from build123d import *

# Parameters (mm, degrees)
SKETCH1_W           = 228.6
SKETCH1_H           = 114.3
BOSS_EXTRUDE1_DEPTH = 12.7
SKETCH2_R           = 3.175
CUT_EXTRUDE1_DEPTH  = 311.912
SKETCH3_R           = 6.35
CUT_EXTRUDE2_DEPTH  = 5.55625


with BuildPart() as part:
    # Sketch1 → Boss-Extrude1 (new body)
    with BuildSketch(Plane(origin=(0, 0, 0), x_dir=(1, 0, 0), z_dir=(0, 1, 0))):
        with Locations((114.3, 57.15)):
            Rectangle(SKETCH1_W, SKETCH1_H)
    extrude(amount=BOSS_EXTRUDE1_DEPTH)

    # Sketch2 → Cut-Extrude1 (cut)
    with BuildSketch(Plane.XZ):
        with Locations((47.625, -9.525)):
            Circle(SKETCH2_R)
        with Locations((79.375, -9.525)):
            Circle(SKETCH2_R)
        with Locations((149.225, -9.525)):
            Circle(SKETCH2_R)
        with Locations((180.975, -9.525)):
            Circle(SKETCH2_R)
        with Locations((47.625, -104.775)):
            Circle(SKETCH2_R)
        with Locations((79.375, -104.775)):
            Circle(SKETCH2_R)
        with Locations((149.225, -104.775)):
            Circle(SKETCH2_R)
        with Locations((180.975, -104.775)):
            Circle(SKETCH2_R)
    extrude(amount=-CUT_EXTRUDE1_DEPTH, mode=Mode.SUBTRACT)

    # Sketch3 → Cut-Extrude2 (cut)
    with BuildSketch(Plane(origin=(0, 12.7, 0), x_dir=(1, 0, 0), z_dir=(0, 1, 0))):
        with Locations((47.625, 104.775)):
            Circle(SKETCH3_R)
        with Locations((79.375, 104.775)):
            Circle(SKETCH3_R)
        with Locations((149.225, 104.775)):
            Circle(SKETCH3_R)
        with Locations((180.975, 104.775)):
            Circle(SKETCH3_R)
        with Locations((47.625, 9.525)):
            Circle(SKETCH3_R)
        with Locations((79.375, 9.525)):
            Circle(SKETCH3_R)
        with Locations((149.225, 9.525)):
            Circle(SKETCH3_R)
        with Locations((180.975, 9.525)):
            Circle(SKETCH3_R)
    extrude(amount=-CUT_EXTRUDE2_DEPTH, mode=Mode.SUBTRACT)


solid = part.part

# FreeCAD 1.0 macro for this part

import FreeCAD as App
import Part
import Sketcher
from FreeCAD import Vector
Q = App.Units.Quantity

doc = App.newDocument("Part")
body = doc.addObject("PartDesign::Body", "Body")

# Sketch on XZ plane
sketch1 = body.newObject("Sketcher::SketchObject", "Sketch")
sketch1.AttachmentSupport = (doc.getObject("XZ_Plane"), [""])
sketch1.MapMode = "FlatFace"
sketch1.addGeometry(Part.LineSegment(Vector(0, -114, 0), Vector(0, 0, 0)), False)
sketch1.addGeometry(Part.LineSegment(Vector(0, 0, 0), Vector(229, 0, 0)), False)
sketch1.addGeometry(Part.LineSegment(Vector(229, 0, 0), Vector(229, -114, 0)), False)
sketch1.addGeometry(Part.LineSegment(Vector(229, -114, 0), Vector(0, -114, 0)), False)
sketch1.addConstraint(Sketcher.Constraint("Coincident", 0, 2, 1, 1))
sketch1.addConstraint(Sketcher.Constraint("Coincident", 1, 2, 2, 1))
sketch1.addConstraint(Sketcher.Constraint("Coincident", 2, 2, 3, 1))
sketch1.addConstraint(Sketcher.Constraint("Coincident", 3, 2, 0, 1))
sketch1.addConstraint(Sketcher.Constraint("Vertical", 0))
sketch1.addConstraint(Sketcher.Constraint("Horizontal", 1))
sketch1.addConstraint(Sketcher.Constraint("Vertical", 2))
sketch1.addConstraint(Sketcher.Constraint("Horizontal", 3))
sketch1.addConstraint(Sketcher.Constraint("Coincident", 0, 2, -1, 1))
sketch1.addConstraint(Sketcher.Constraint("DistanceX", 1, 1, 1, 2, Q("9 in")))
sketch1.addConstraint(Sketcher.Constraint("DistanceY", 0, 1, 0, 2, Q("4.5 in")))
pad1 = body.newObject("PartDesign::Pad", "Pad")
pad1.Profile = sketch1
pad1.Length = Q("0.5 in")
pad1.Reversed = True

# Sketch on XZ plane
sketch2 = body.newObject("Sketcher::SketchObject", "Sketch001")
sketch2.AttachmentSupport = (doc.getObject("XZ_Plane"), [""])
sketch2.MapMode = "FlatFace"
sketch2.addGeometry(Part.Circle(Vector(47.6, -9.5, 0), Vector(0, 0, 1), 3.2), False)
sketch2.addGeometry(Part.Circle(Vector(79.4, -9.5, 0), Vector(0, 0, 1), 3.2), False)
sketch2.addGeometry(Part.Circle(Vector(149.2, -9.5, 0), Vector(0, 0, 1), 3.2), False)
sketch2.addGeometry(Part.Circle(Vector(181, -9.5, 0), Vector(0, 0, 1), 3.2), False)
sketch2.addGeometry(Part.Circle(Vector(47.6, -104.8, 0), Vector(0, 0, 1), 3.2), False)
sketch2.addGeometry(Part.Circle(Vector(79.4, -104.8, 0), Vector(0, 0, 1), 3.2), False)
sketch2.addGeometry(Part.Circle(Vector(149.2, -104.8, 0), Vector(0, 0, 1), 3.2), False)
sketch2.addGeometry(Part.Circle(Vector(181, -104.8, 0), Vector(0, 0, 1), 3.2), False)
sketch2.addConstraint(Sketcher.Constraint("Equal", 0, 1))
sketch2.addConstraint(Sketcher.Constraint("Equal", 1, 2))
sketch2.addConstraint(Sketcher.Constraint("Equal", 2, 3))
sketch2.addConstraint(Sketcher.Constraint("Equal", 3, 4))
sketch2.addConstraint(Sketcher.Constraint("Equal", 4, 5))
sketch2.addConstraint(Sketcher.Constraint("Equal", 5, 6))
sketch2.addConstraint(Sketcher.Constraint("Equal", 6, 7))
sketch2.addConstraint(Sketcher.Constraint("Horizontal", 0, 3, 1, 3))
sketch2.addConstraint(Sketcher.Constraint("Horizontal", 1, 3, 2, 3))
sketch2.addConstraint(Sketcher.Constraint("Horizontal", 2, 3, 3, 3))
sketch2.addConstraint(Sketcher.Constraint("Horizontal", 4, 3, 5, 3))
sketch2.addConstraint(Sketcher.Constraint("Horizontal", 5, 3, 6, 3))
sketch2.addConstraint(Sketcher.Constraint("Horizontal", 6, 3, 7, 3))
sketch2.addConstraint(Sketcher.Constraint("Vertical", 0, 3, 4, 3))
sketch2.addConstraint(Sketcher.Constraint("Vertical", 1, 3, 5, 3))
sketch2.addConstraint(Sketcher.Constraint("Vertical", 2, 3, 6, 3))
sketch2.addConstraint(Sketcher.Constraint("Vertical", 3, 3, 7, 3))
sketch2.addConstraint(Sketcher.Constraint("Diameter", 0, Q("0.25 in")))
sketch2.addConstraint(Sketcher.Constraint("DistanceX", 0, 3, 2, 3, Q("4 in")))
sketch2.addConstraint(Sketcher.Constraint("DistanceX", 1, 3, 3, 3, Q("4 in")))
sketch2.addConstraint(Sketcher.Constraint("DistanceX", 0, 3, 1, 3, Q("1.25 in")))
sketch2.addConstraint(Sketcher.Constraint("DistanceY", 4, 3, 0, 3, Q("3.75 in")))
sketch2.addConstraint(Sketcher.Constraint("DistanceX", -1, 1, 0, 3, Q("1.875 in")))
sketch2.addConstraint(Sketcher.Constraint("DistanceY", 0, 3, -1, 1, Q("0.375 in")))
pocket1 = body.newObject("PartDesign::Pocket", "Pocket")
pocket1.Profile = sketch2
pocket1.Length = Q("12.28 in")

# Sketch on XZ plane
sketch3 = body.newObject("Sketcher::SketchObject", "Sketch002")
sketch3.AttachmentSupport = (doc.getObject("XZ_Plane"), [""])
sketch3.MapMode = "FlatFace"
sketch3.AttachmentOffset = App.Placement(Vector(0, 0, -0.5 * 25.4), App.Rotation())
sketch3.addGeometry(Part.Circle(Vector(48, -105, 0), Vector(0, 0, 1), 6), False)
sketch3.addGeometry(Part.Circle(Vector(79, -105, 0), Vector(0, 0, 1), 6), False)
sketch3.addGeometry(Part.Circle(Vector(149, -105, 0), Vector(0, 0, 1), 6), False)
sketch3.addGeometry(Part.Circle(Vector(181, -105, 0), Vector(0, 0, 1), 6), False)
sketch3.addGeometry(Part.Circle(Vector(48, -10, 0), Vector(0, 0, 1), 6), False)
sketch3.addGeometry(Part.Circle(Vector(79, -10, 0), Vector(0, 0, 1), 6), False)
sketch3.addGeometry(Part.Circle(Vector(149, -10, 0), Vector(0, 0, 1), 6), False)
sketch3.addGeometry(Part.Circle(Vector(181, -10, 0), Vector(0, 0, 1), 6), False)
sketch3.addConstraint(Sketcher.Constraint("Equal", 0, 1))
sketch3.addConstraint(Sketcher.Constraint("Equal", 1, 2))
sketch3.addConstraint(Sketcher.Constraint("Equal", 2, 3))
sketch3.addConstraint(Sketcher.Constraint("Equal", 3, 4))
sketch3.addConstraint(Sketcher.Constraint("Equal", 4, 5))
sketch3.addConstraint(Sketcher.Constraint("Equal", 5, 6))
sketch3.addConstraint(Sketcher.Constraint("Equal", 6, 7))
sketch3.addConstraint(Sketcher.Constraint("Horizontal", 0, 3, 1, 3))
sketch3.addConstraint(Sketcher.Constraint("Horizontal", 1, 3, 2, 3))
sketch3.addConstraint(Sketcher.Constraint("Horizontal", 2, 3, 3, 3))
sketch3.addConstraint(Sketcher.Constraint("Horizontal", 4, 3, 5, 3))
sketch3.addConstraint(Sketcher.Constraint("Horizontal", 5, 3, 6, 3))
sketch3.addConstraint(Sketcher.Constraint("Horizontal", 6, 3, 7, 3))
sketch3.addConstraint(Sketcher.Constraint("Vertical", 0, 3, 4, 3))
sketch3.addConstraint(Sketcher.Constraint("Vertical", 1, 3, 5, 3))
sketch3.addConstraint(Sketcher.Constraint("Vertical", 2, 3, 6, 3))
sketch3.addConstraint(Sketcher.Constraint("Vertical", 3, 3, 7, 3))
sketch3.addConstraint(Sketcher.Constraint("Diameter", 0, Q("0.5 in")))
sketch3.addConstraint(Sketcher.Constraint("DistanceX", 0, 3, 2, 3, Q("4 in")))
sketch3.addConstraint(Sketcher.Constraint("DistanceX", 1, 3, 3, 3, Q("4 in")))
sketch3.addConstraint(Sketcher.Constraint("DistanceX", 0, 3, 1, 3, Q("1.25 in")))
sketch3.addConstraint(Sketcher.Constraint("DistanceY", 0, 3, 4, 3, Q("3.75 in")))
sketch3.addConstraint(Sketcher.Constraint("DistanceX", -1, 1, 0, 3, Q("1.875 in")))
sketch3.addConstraint(Sketcher.Constraint("DistanceY", 0, 3, -1, 1, Q("4.125 in")))
pocket2 = body.newObject("PartDesign::Pocket", "Pocket001")
pocket2.Profile = sketch3
pocket2.Length = Q("0.21875 in")
pocket2.Reversed = True

doc.recompute()
